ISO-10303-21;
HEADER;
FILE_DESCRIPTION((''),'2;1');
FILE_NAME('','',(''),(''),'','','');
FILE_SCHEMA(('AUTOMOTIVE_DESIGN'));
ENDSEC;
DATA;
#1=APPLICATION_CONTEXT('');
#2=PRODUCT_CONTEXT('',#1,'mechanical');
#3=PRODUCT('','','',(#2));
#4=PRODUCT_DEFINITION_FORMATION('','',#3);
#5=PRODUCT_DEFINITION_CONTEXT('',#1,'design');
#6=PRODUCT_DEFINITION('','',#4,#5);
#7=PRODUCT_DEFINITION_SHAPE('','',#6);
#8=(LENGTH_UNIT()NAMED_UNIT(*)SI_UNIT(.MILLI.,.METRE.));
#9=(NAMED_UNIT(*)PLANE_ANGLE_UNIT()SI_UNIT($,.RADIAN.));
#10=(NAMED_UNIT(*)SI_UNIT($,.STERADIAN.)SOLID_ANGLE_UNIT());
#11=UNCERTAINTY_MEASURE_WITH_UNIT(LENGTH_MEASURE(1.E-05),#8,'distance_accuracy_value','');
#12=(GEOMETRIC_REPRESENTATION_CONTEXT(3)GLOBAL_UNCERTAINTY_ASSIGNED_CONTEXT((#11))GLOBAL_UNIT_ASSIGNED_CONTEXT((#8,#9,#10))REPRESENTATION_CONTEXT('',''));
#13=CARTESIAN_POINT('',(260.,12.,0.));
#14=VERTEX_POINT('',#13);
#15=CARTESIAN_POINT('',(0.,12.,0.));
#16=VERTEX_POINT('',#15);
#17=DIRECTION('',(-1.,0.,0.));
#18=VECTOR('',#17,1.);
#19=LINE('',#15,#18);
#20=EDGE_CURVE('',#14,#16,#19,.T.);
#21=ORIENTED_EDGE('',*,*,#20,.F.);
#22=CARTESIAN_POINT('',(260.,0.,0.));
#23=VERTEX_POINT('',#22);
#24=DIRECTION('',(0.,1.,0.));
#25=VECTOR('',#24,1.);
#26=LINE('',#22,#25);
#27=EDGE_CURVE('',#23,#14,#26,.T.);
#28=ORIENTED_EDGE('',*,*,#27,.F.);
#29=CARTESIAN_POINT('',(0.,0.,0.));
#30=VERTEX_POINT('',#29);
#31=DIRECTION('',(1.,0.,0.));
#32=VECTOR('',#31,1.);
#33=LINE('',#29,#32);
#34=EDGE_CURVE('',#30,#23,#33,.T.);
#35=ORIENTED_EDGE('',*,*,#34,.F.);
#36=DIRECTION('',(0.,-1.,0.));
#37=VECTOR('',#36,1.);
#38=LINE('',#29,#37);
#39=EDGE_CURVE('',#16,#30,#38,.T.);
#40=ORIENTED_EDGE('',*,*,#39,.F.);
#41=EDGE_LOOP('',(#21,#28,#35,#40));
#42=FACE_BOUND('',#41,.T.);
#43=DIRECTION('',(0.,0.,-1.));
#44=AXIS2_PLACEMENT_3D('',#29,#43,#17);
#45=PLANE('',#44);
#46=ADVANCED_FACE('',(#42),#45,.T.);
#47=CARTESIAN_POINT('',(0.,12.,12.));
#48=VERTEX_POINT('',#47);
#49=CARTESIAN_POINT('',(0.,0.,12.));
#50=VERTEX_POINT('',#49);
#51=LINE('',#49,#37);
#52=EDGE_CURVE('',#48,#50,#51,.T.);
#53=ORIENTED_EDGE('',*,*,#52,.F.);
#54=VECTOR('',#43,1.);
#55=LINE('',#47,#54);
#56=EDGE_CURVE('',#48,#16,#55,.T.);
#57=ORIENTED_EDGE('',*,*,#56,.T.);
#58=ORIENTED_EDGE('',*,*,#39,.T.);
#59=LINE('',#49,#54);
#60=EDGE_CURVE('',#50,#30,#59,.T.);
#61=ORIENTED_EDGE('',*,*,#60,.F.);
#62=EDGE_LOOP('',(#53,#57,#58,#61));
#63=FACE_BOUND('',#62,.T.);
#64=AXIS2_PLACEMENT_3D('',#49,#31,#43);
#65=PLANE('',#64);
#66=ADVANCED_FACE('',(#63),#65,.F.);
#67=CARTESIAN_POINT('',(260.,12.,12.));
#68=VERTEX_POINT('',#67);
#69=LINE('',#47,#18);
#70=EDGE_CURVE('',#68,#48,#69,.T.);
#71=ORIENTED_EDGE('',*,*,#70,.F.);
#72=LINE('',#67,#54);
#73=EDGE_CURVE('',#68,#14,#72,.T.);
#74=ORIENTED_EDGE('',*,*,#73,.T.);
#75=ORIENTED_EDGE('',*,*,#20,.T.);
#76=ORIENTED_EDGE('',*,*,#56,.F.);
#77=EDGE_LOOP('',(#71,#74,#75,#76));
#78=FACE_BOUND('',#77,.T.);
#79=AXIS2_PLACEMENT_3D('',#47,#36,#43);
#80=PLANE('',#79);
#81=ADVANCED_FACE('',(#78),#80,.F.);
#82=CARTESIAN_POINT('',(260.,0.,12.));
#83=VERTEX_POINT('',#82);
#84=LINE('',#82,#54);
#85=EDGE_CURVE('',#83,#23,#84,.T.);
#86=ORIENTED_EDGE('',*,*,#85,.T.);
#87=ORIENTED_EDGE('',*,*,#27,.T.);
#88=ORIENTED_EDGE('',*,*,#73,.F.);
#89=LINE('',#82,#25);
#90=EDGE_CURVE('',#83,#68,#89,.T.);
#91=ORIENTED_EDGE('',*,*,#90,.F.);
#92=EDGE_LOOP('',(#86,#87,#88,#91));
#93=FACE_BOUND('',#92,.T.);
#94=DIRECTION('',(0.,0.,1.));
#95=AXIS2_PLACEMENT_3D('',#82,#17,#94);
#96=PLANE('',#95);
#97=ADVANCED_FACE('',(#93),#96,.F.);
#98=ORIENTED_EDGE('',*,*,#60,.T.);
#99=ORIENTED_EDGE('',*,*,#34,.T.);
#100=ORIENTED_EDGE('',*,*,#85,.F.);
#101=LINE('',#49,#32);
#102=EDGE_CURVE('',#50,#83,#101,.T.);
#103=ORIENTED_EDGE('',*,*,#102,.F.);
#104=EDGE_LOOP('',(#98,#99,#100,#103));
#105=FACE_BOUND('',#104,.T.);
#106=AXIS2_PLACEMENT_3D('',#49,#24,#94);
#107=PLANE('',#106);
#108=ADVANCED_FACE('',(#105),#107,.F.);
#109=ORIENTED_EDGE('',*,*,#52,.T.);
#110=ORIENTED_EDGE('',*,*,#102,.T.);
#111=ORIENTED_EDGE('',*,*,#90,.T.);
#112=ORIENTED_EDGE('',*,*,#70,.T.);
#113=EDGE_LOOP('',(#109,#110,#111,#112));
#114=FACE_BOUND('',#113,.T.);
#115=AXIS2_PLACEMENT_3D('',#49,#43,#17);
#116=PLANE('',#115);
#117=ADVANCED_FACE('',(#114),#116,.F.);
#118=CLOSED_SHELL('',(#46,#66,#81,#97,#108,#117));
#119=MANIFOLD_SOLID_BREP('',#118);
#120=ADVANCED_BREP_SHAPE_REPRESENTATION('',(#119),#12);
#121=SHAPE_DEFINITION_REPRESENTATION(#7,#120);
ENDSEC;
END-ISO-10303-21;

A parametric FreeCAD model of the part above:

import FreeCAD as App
import Part
import Sketcher
Q = App.Units.Quantity


def add_polygon(sketch, points):
    """Adds a closed chain of lines whose ends are joined by coincident constraints."""
    first, n = sketch.GeometryCount, len(points)
    for a, b in zip(points, points[1:] + points[:1]):
        sketch.addGeometry(Part.LineSegment(App.Vector(*a, 0), App.Vector(*b, 0)), False)
    for i in range(n):
        sketch.addConstraint(Sketcher.Constraint("Coincident", first + i, 2, first + (i + 1) % n, 1))

doc = App.newDocument("Part")
body = doc.addObject("PartDesign::Body", "Body")

# Sketch on XY plane
sketch1 = body.newObject("Sketcher::SketchObject", "Sketch")
sketch1.AttachmentSupport = (doc.getObject("XY_Plane"), [""])
sketch1.MapMode = "FlatFace"
add_polygon(sketch1, [(0, 12), (0, 0), (260, 0), (260, 12)])  # lines 0-3
sketch1.addConstraint([
    Sketcher.Constraint("Vertical", 0),
    Sketcher.Constraint("Horizontal", 1),
    Sketcher.Constraint("Vertical", 2),
    Sketcher.Constraint("Horizontal", 3),
    Sketcher.Constraint("Coincident", 0, 2, -1, 1),
    Sketcher.Constraint("DistanceX", 1, 1, 1, 2, Q("260 mm")),
    Sketcher.Constraint("DistanceY", 0, 2, 0, 1, Q("12 mm")),
])
pad1 = body.newObject("PartDesign::Pad", "Pad")
pad1.Profile = sketch1
pad1.Length = 12

doc.recompute()
